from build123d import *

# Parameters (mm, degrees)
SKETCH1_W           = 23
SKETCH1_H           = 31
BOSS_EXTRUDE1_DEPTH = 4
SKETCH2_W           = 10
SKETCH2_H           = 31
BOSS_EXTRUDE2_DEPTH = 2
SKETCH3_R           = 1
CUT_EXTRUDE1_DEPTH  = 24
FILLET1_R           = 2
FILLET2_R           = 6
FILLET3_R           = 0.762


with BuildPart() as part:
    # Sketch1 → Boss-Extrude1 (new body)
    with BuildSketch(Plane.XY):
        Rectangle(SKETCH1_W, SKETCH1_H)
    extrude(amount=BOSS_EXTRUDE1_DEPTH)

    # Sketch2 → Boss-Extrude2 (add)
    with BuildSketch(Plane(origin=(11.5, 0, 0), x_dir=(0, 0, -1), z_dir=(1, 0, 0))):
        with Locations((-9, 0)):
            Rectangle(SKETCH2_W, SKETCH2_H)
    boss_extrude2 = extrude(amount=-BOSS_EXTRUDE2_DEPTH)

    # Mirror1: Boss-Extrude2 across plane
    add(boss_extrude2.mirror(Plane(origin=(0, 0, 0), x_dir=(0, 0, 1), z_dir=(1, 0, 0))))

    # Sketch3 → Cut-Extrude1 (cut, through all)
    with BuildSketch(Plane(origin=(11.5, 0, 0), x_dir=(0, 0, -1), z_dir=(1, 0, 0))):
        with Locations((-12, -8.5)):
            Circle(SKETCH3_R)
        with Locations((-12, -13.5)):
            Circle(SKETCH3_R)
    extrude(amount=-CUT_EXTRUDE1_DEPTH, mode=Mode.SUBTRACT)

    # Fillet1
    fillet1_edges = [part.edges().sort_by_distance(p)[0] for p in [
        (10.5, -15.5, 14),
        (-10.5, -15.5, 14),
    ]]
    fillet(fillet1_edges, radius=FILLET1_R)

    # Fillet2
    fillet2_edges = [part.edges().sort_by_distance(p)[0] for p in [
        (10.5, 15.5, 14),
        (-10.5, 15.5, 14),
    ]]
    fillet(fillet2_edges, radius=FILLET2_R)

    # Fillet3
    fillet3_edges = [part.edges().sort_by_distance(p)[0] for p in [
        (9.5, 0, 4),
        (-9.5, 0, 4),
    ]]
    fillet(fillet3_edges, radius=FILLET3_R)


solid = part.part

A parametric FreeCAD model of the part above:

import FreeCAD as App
import Part
import Sketcher
from FreeCAD import Vector
Q = App.Units.Quantity


def edges_at(feature, points):
    """Names of the edges that pass closest to the given points."""
    edges = feature.Shape.Edges
    near = lambda p: min(range(len(edges)), key=lambda i: edges[i].distToShape(Part.Vertex(*p))[0])
    return sorted({f"Edge{near(p) + 1}" for p in points})


def add_polygon(sketch, points):
    """Adds a closed chain of lines whose ends are joined by coincident constraints."""
    first, n = sketch.GeometryCount, len(points)
    for a, b in zip(points, points[1:] + points[:1]):
        sketch.addGeometry(Part.LineSegment(App.Vector(*a, 0), App.Vector(*b, 0)), False)
    for i in range(n):
        sketch.addConstraint(Sketcher.Constraint("Coincident", first + i, 2, first + (i + 1) % n, 1))

doc = App.newDocument("Part")
params = doc.addObject("Spreadsheet::Sheet", "Params")
for row, (alias, value) in enumerate([
    ("sketch1_width", "23 mm"),
    ("sketch1_height", "31 mm"),
    ("pad1_length", "4 mm"),
    ("sketch2_width", "31 mm"),
    ("sketch2_height", "10 mm"),
    ("pad2_length", "2 mm"),
    ("sketch3_diameter", "2 mm"),
    ("fillet_radius", "2 mm"),
    ("fillet2_radius", "6 mm"),
    ("fillet3_radius", "0.762 mm"),
], start=1):
    params.set(f"A{row}", alias)
    params.set(f"B{row}", "=" + value)
    params.setAlias(f"B{row}", alias)

body = doc.addObject("PartDesign::Body", "Body")

sketch1 = doc.addObject("Sketcher::SketchObject", "Sketch")
body.addObject(sketch1)
sketch1.AttachmentSupport = (doc.XY_Plane, [""])
sketch1.MapMode = "FlatFace"
add_polygon(sketch1, [(-12, 16), (-12, -16), (12, -16), (12, 16)])
sketch1.addConstraint(Sketcher.Constraint("Vertical", 0))
sketch1.addConstraint(Sketcher.Constraint("Horizontal", 1))
sketch1.addConstraint(Sketcher.Constraint("Vertical", 2))
sketch1.addConstraint(Sketcher.Constraint("Horizontal", 3))
sketch1.addConstraint(Sketcher.Constraint("Symmetric", 0, 2, 2, 2, -1, 1))
sketch1.addConstraint(Sketcher.Constraint("DistanceX", 1, 1, 1, 2, Q("23 mm")))
sketch1.addConstraint(Sketcher.Constraint("DistanceY", 0, 2, 0, 1, Q("31 mm")))
sketch1.setExpression("Constraints[9]", "Params.sketch1_width")
sketch1.setExpression("Constraints[10]", "Params.sketch1_height")
pad1 = doc.addObject("PartDesign::Pad", "Pad")
body.addObject(pad1)
pad1.Profile = sketch1
pad1.setExpression("Length", "Params.pad1_length")

sketch2 = doc.addObject("Sketcher::SketchObject", "Sketch001")
body.addObject(sketch2)
sketch2.AttachmentSupport = (doc.YZ_Plane, [""])
sketch2.MapMode = "FlatFace"
sketch2.AttachmentOffset = App.Placement(Vector(0, 0, 11.5), App.Rotation())
add_polygon(sketch2, [(16, 14), (-16, 14), (-16, 4), (16, 4)])
sketch2.addConstraint(Sketcher.Constraint("Horizontal", 0))
sketch2.addConstraint(Sketcher.Constraint("Vertical", 1))
sketch2.addConstraint(Sketcher.Constraint("Horizontal", 2))
sketch2.addConstraint(Sketcher.Constraint("Vertical", 3))
sketch2.addConstraint(Sketcher.Constraint("DistanceX", 0, 2, 0, 1, Q("31 mm")))
sketch2.addConstraint(Sketcher.Constraint("DistanceY", 1, 2, 1, 1, Q("10 mm")))
sketch2.addConstraint(Sketcher.Constraint("DistanceY", -1, 1, 0, 2, Q("14 mm")))
sketch2.addConstraint(Sketcher.Constraint("DistanceX", 0, 2, -1, 1, Q("15.5 mm")))
sketch2.setExpression("Constraints[8]", "Params.sketch2_width")
sketch2.setExpression("Constraints[9]", "Params.sketch2_height")
pad2 = doc.addObject("PartDesign::Pad", "Pad001")
body.addObject(pad2)
pad2.Profile = sketch2
pad2.setExpression("Length", "Params.pad2_length")
pad2.Reversed = True
doc.recompute()

mirrored = doc.addObject("PartDesign::Mirrored", "Mirrored")
body.addObject(mirrored)
mirrored.Originals = [pad2]
mirrored.MirrorPlane = (doc.YZ_Plane, [""])
body.Tip = mirrored

sketch3 = doc.addObject("Sketcher::SketchObject", "Sketch002")
body.addObject(sketch3)
sketch3.AttachmentSupport = (doc.YZ_Plane, [""])
sketch3.MapMode = "FlatFace"
sketch3.AttachmentOffset = App.Placement(Vector(0, 0, 11.5), App.Rotation())
sketch3.addGeometry(Part.Circle(Vector(-8.5, 12, 0), Vector(0, 0, 1), 1), False)
sketch3.addGeometry(Part.Circle(Vector(-13.5, 12, 0), Vector(0, 0, 1), 1), False)
sketch3.addConstraint(Sketcher.Constraint("Equal", 0, 1))
sketch3.addConstraint(Sketcher.Constraint("Horizontal", 0, 3, 1, 3))
sketch3.addConstraint(Sketcher.Constraint("Diameter", 0, Q("2 mm")))
sketch3.addConstraint(Sketcher.Constraint("DistanceY", -1, 1, 0, 3, Q("12 mm")))
sketch3.addConstraint(Sketcher.Constraint("DistanceX", 1, 3, 0, 3, Q("5 mm")))
sketch3.addConstraint(Sketcher.Constraint("DistanceX", 0, 3, -1, 1, Q("8.5 mm")))
sketch3.setExpression("Constraints[2]", "Params.sketch3_diameter")
pocket1 = doc.addObject("PartDesign::Pocket", "Pocket")
body.addObject(pocket1)
pocket1.Profile = sketch3
pocket1.Type = "ThroughAll"
doc.recompute()

fillet = doc.addObject("PartDesign::Fillet", "Fillet")
body.addObject(fillet)
fillet.Base = (pocket1, edges_at(pocket1, [(10.5, -15.5, 14), (-10.5, -15.5, 14)]))
fillet.setExpression("Radius", "Params.fillet_radius")
doc.recompute()

fillet2 = doc.addObject("PartDesign::Fillet", "Fillet001")
body.addObject(fillet2)
fillet2.Base = (fillet, edges_at(fillet, [(10.5, 15.5, 14), (-10.5, 15.5, 14)]))
fillet2.setExpression("Radius", "Params.fillet2_radius")
doc.recompute()

fillet3 = doc.addObject("PartDesign::Fillet", "Fillet002")
body.addObject(fillet3)
fillet3.Base = (fillet2, edges_at(fillet2, [(9.5, 0, 4), (-9.5, 0, 4)]))
fillet3.setExpression("Radius", "Params.fillet3_radius")

doc.recompute()
